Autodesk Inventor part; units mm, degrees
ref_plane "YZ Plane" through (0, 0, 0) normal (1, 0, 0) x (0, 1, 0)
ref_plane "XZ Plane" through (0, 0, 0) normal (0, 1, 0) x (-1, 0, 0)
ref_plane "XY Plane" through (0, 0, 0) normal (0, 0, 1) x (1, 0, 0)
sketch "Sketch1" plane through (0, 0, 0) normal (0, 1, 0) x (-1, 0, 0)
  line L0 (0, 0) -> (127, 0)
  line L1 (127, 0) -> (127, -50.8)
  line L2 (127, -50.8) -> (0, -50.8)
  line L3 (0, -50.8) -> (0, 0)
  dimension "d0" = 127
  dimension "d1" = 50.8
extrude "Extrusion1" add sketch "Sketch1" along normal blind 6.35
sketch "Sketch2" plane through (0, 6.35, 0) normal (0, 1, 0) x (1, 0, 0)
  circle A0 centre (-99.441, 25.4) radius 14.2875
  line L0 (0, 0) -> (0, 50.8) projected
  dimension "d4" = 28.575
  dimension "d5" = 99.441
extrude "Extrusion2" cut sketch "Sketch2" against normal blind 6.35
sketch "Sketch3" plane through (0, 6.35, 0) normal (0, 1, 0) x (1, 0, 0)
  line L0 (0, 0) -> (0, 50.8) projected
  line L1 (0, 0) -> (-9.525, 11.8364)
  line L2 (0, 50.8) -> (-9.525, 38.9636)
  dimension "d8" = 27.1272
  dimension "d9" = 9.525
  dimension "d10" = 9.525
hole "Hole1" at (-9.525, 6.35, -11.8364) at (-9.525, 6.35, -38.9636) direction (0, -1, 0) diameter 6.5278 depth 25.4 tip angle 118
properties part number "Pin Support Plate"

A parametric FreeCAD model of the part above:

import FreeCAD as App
import Part
import Sketcher

V = App.Vector
Q = App.Units.Quantity


def add_polygon(sketch, points):
    """Adds a closed chain of lines whose ends are joined by coincident constraints."""
    first, n = sketch.GeometryCount, len(points)
    for a, b in zip(points, points[1:] + points[:1]):
        sketch.addGeometry(Part.LineSegment(App.Vector(*a, 0), App.Vector(*b, 0)), False)
    for i in range(n):
        sketch.addConstraint(Sketcher.Constraint("Coincident", first + i, 2, first + (i + 1) % n, 1))

doc = App.newDocument("Part")
params = doc.addObject("Spreadsheet::Sheet", "Params")
for row, (alias, value) in enumerate([
    ("sketch1_width", "5 in"),
    ("sketch1_height", "2 in"),
    ("pad1_length", "0.25 in"),
    ("sketch2_diameter", "1.125 in"),
    ("pocket1_length", "0.25 in"),
    ("sketch3_diameter", "0.257 in"),
    ("hole_diameter", "0.257 in"),
    ("hole_depth", "1 in"),
], start=1):
    params.set(f"A{row}", alias)
    params.set(f"B{row}", "=" + value)
    params.setAlias(f"B{row}", alias)

body = doc.addObject("PartDesign::Body", "Body")

# Sketch on XZ plane
sketch1 = doc.addObject("Sketcher::SketchObject", "Sketch")
body.addObject(sketch1)
sketch1.AttachmentSupport = (doc.XZ_Plane, [""])
sketch1.MapMode = "FlatFace"
add_polygon(sketch1, [(-127, 0), (0, 0), (0, -50.8), (-127, -50.8)])  # lines 0-3
sketch1.addConstraint([
    Sketcher.Constraint("Horizontal", 0),
    Sketcher.Constraint("Vertical", 1),
    Sketcher.Constraint("Horizontal", 2),
    Sketcher.Constraint("Vertical", 3),
    Sketcher.Constraint("Coincident", 0, 2, -1, 1),
    Sketcher.Constraint("DistanceX", 0, 1, 0, 2, Q("5 in")),
    Sketcher.Constraint("DistanceY", 1, 2, 1, 1, Q("2 in")),
])
sketch1.setExpression("Constraints[9]", "Params.sketch1_width")
sketch1.setExpression("Constraints[10]", "Params.sketch1_height")
pad1 = doc.addObject("PartDesign::Pad", "Pad")
body.addObject(pad1)
pad1.Profile = sketch1
pad1.setExpression("Length", "Params.pad1_length")
pad1.Reversed = True

# Sketch on XZ plane
sketch2 = doc.addObject("Sketcher::SketchObject", "Sketch001")
body.addObject(sketch2)
sketch2.AttachmentSupport = (doc.XZ_Plane, [""])
sketch2.MapMode = "FlatFace"
sketch2.AttachmentOffset = App.Placement(V(0, 0, -0.25 * 25.4), App.Rotation())
sketch2.addGeometry(Part.Circle(V(-99.441, -25.4, 0), V(0, 0, 1), 14.2875), False)
sketch2.addConstraint([
    Sketcher.Constraint("Diameter", 0, Q("1.125 in")),
    Sketcher.Constraint("DistanceX", 0, 3, -1, 1, Q("3.915 in")),
    Sketcher.Constraint("DistanceY", 0, 3, -1, 1, Q("1 in")),
])
sketch2.setExpression("Constraints[0]", "Params.sketch2_diameter")
pocket1 = doc.addObject("PartDesign::Pocket", "Pocket")
body.addObject(pocket1)
pocket1.Profile = sketch2
pocket1.setExpression("Length", "Params.pocket1_length")
pocket1.Reversed = True

# Sketch on XZ plane
sketch3 = doc.addObject("Sketcher::SketchObject", "Sketch002")
body.addObject(sketch3)
sketch3.AttachmentSupport = (doc.XZ_Plane, [""])
sketch3.MapMode = "FlatFace"
sketch3.AttachmentOffset = App.Placement(V(0, 0, -0.25 * 25.4), App.Rotation())
sketch3.addGeometry([
    Part.Circle(V(-9.525, -11.8364, 0), V(0, 0, 1), 3.2639),
    Part.Circle(V(-9.525, -38.9636, 0), V(0, 0, 1), 3.2639),
], False)
sketch3.addConstraint([
    Sketcher.Constraint("Equal", 0, 1),
    Sketcher.Constraint("Vertical", 0, 3, 1, 3),
    Sketcher.Constraint("Diameter", 0, Q("0.257 in")),
    Sketcher.Constraint("DistanceX", 0, 3, -1, 1, Q("0.375 in")),
    Sketcher.Constraint("DistanceY", 0, 3, -1, 1, Q("0.466 in")),
    Sketcher.Constraint("DistanceY", 1, 3, -1, 1, Q("1.534 in")),
])
sketch3.setExpression("Constraints[2]", "Params.sketch3_diameter")
doc.recompute()
hole = doc.addObject("PartDesign::Hole", "Hole")
body.addObject(hole)
hole.Profile = sketch3
hole.ThreadType = "None"
hole.setExpression("Diameter", "Params.hole_diameter")
hole.DepthType = "Dimension"
hole.setExpression("Depth", "Params.hole_depth")
hole.DrillPoint = "Angled"
hole.DrillPointAngle = 118
hole.Reversed = True

doc.recompute()
